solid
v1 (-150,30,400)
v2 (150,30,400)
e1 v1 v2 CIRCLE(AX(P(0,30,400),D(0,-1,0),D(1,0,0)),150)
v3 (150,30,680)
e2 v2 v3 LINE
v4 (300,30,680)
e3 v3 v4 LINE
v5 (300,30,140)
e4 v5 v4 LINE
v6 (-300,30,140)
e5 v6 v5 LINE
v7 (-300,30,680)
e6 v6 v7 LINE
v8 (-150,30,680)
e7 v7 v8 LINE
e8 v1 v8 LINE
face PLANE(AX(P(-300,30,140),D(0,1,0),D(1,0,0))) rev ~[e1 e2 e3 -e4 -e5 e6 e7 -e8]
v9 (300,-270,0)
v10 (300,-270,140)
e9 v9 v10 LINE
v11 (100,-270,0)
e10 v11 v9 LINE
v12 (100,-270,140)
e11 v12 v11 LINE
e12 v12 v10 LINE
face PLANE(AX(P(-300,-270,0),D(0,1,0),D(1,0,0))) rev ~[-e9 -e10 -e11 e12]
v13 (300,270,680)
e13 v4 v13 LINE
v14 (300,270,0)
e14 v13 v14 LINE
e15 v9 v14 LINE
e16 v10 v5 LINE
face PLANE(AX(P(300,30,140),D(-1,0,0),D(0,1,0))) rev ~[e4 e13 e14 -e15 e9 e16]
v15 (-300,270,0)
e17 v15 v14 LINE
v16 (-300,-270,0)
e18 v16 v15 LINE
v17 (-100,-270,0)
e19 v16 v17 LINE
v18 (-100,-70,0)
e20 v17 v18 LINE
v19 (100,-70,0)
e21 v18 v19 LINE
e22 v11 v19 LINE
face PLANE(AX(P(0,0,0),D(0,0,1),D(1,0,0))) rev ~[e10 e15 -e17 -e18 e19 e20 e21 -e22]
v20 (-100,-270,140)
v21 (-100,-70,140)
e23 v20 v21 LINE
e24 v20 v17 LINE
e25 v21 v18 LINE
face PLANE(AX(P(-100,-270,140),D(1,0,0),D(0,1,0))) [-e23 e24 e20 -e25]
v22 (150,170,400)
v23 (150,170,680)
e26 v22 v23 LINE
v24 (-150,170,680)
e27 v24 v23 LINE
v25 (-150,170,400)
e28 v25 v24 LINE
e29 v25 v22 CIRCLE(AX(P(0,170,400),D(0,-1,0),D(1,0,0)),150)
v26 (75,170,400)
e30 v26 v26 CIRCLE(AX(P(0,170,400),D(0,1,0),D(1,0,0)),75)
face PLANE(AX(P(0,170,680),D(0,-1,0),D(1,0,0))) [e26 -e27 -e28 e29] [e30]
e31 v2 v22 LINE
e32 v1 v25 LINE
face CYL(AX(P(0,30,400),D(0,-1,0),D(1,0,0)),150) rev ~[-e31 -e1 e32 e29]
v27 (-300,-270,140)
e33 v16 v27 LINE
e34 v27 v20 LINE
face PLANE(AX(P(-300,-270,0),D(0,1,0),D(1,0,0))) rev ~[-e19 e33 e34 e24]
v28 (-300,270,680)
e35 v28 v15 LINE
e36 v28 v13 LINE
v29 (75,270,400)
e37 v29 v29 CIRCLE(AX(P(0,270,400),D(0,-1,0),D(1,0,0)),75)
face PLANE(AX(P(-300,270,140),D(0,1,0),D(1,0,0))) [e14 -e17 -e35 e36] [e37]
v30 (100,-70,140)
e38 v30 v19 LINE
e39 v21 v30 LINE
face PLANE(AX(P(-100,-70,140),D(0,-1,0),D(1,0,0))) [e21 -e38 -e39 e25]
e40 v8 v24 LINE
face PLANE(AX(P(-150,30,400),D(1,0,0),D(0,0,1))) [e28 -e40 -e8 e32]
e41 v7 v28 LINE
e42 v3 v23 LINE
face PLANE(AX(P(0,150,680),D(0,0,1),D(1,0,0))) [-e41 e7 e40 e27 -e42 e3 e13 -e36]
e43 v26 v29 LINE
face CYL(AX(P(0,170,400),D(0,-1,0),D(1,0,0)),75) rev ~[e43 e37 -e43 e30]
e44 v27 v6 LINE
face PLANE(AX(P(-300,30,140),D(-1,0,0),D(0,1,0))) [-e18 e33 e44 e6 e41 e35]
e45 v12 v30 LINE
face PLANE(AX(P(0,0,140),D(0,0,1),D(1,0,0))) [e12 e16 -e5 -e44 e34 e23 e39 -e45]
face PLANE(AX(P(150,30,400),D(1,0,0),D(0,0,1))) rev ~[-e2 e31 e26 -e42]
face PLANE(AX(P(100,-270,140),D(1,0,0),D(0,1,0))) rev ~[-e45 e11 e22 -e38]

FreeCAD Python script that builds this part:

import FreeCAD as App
import Part
import Sketcher

doc = App.newDocument("Part")
params = doc.addObject("Spreadsheet::Sheet", "Params")
for row, (alias, value) in enumerate([
    ("sketch1_width", "600 mm"),
    ("sketch1_height", "540 mm"),
    ("pad1_length", "140 mm"),
    ("sketch2_width", "200 mm"),
    ("sketch3_width", "600 mm"),
    ("sketch3_height", "240 mm"),
    ("pad2_length", "540 mm"),
    ("sketch4_width", "300 mm"),
    ("sketch4_height", "560 mm"),
    ("pocket2_length", "140 mm"),
    ("sketch5_diameter", "150 mm"),
    ("sketch6_diameter", "300 mm"),
    ("pocket4_length", "140 mm"),
], start=1):
    params.set(f"A{row}", alias)
    params.set(f"B{row}", "=" + value)
    params.setAlias(f"B{row}", alias)

body = doc.addObject("PartDesign::Body", "Body")

# Sketch on XY plane
sketch1 = body.newObject("Sketcher::SketchObject", "Sketch")
sketch1.AttachmentSupport = (doc.getObject("XY_Plane"), [""])
sketch1.MapMode = "FlatFace"
sketch1.addGeometry(Part.LineSegment(App.Vector(-300, 270, 0), App.Vector(-300, -270, 0)), False)
sketch1.addGeometry(Part.LineSegment(App.Vector(-300, -270, 0), App.Vector(300, -270, 0)), False)
sketch1.addGeometry(Part.LineSegment(App.Vector(300, -270, 0), App.Vector(300, 270, 0)), False)
sketch1.addGeometry(Part.LineSegment(App.Vector(300, 270, 0), App.Vector(-300, 270, 0)), False)
sketch1.addConstraint(Sketcher.Constraint("Coincident", 0, 2, 1, 1))
sketch1.addConstraint(Sketcher.Constraint("Coincident", 1, 2, 2, 1))
sketch1.addConstraint(Sketcher.Constraint("Coincident", 2, 2, 3, 1))
sketch1.addConstraint(Sketcher.Constraint("Coincident", 3, 2, 0, 1))
sketch1.addConstraint(Sketcher.Constraint("Vertical", 0))
sketch1.addConstraint(Sketcher.Constraint("Horizontal", 1))
sketch1.addConstraint(Sketcher.Constraint("Vertical", 2))
sketch1.addConstraint(Sketcher.Constraint("Horizontal", 3))
sketch1.addConstraint(Sketcher.Constraint("Symmetric", 0, 2, 2, 2, -1, 1))
sketch1.addConstraint(Sketcher.Constraint("DistanceX", 1, 1, 1, 2, 600.0))
sketch1.addConstraint(Sketcher.Constraint("DistanceY", 0, 2, 0, 1, 540.0))
sketch1.setExpression("Constraints[9]", "Params.sketch1_width")
sketch1.setExpression("Constraints[10]", "Params.sketch1_height")
pad1 = body.newObject("PartDesign::Pad", "Pad")
pad1.Profile = sketch1
pad1.setExpression("Length", "Params.pad1_length")

# Sketch on XY plane
sketch2 = body.newObject("Sketcher::SketchObject", "Sketch001")
sketch2.AttachmentSupport = (doc.getObject("XY_Plane"), [""])
sketch2.MapMode = "FlatFace"
sketch2.AttachmentOffset = App.Placement(App.Vector(0, 0, 140), App.Rotation())
sketch2.addGeometry(Part.LineSegment(App.Vector(-100, -70, 0), App.Vector(-100, -270, 0)), False)
sketch2.addGeometry(Part.LineSegment(App.Vector(-100, -270, 0), App.Vector(100, -270, 0)), False)
sketch2.addGeometry(Part.LineSegment(App.Vector(100, -270, 0), App.Vector(100, -70, 0)), False)
sketch2.addGeometry(Part.LineSegment(App.Vector(100, -70, 0), App.Vector(-100, -70, 0)), False)
sketch2.addConstraint(Sketcher.Constraint("Coincident", 0, 2, 1, 1))
sketch2.addConstraint(Sketcher.Constraint("Coincident", 1, 2, 2, 1))
sketch2.addConstraint(Sketcher.Constraint("Coincident", 2, 2, 3, 1))
sketch2.addConstraint(Sketcher.Constraint("Coincident", 3, 2, 0, 1))
sketch2.addConstraint(Sketcher.Constraint("Vertical", 0))
sketch2.addConstraint(Sketcher.Constraint("Horizontal", 1))
sketch2.addConstraint(Sketcher.Constraint("Vertical", 2))
sketch2.addConstraint(Sketcher.Constraint("Horizontal", 3))
sketch2.addConstraint(Sketcher.Constraint("Equal", 3, 0))
sketch2.addConstraint(Sketcher.Constraint("DistanceX", 1, 1, 1, 2, 200.0))
sketch2.addConstraint(Sketcher.Constraint("DistanceX", 0, 2, -1, 1, 100.0))
sketch2.addConstraint(Sketcher.Constraint("DistanceY", 0, 2, -1, 1, 270.0))
sketch2.setExpression("Constraints[9]", "Params.sketch2_width")
pocket1 = body.newObject("PartDesign::Pocket", "Pocket")
pocket1.Profile = sketch2
pocket1.Type = "ThroughAll"

# Sketch on XY plane
sketch3 = body.newObject("Sketcher::SketchObject", "Sketch002")
sketch3.AttachmentSupport = (doc.getObject("XY_Plane"), [""])
sketch3.MapMode = "FlatFace"
sketch3.AttachmentOffset = App.Placement(App.Vector(0, 0, 140), App.Rotation())
sketch3.addGeometry(Part.LineSegment(App.Vector(-300, 270, 0), App.Vector(-300, 30, 0)), False)
sketch3.addGeometry(Part.LineSegment(App.Vector(-300, 30, 0), App.Vector(300, 30, 0)), False)
sketch3.addGeometry(Part.LineSegment(App.Vector(300, 30, 0), App.Vector(300, 270, 0)), False)
sketch3.addGeometry(Part.LineSegment(App.Vector(300, 270, 0), App.Vector(-300, 270, 0)), False)
sketch3.addConstraint(Sketcher.Constraint("Coincident", 0, 2, 1, 1))
sketch3.addConstraint(Sketcher.Constraint("Coincident", 1, 2, 2, 1))
sketch3.addConstraint(Sketcher.Constraint("Coincident", 2, 2, 3, 1))
sketch3.addConstraint(Sketcher.Constraint("Coincident", 3, 2, 0, 1))
sketch3.addConstraint(Sketcher.Constraint("Vertical", 0))
sketch3.addConstraint(Sketcher.Constraint("Horizontal", 1))
sketch3.addConstraint(Sketcher.Constraint("Vertical", 2))
sketch3.addConstraint(Sketcher.Constraint("Horizontal", 3))
sketch3.addConstraint(Sketcher.Constraint("DistanceX", 1, 1, 1, 2, 600.0))
sketch3.addConstraint(Sketcher.Constraint("DistanceY", 0, 2, 0, 1, 240.0))
sketch3.addConstraint(Sketcher.Constraint("DistanceX", 0, 2, -1, 1, 300.0))
sketch3.addConstraint(Sketcher.Constraint("DistanceY", -1, 1, 0, 2, 30.0))
sketch3.setExpression("Constraints[8]", "Params.sketch3_width")
sketch3.setExpression("Constraints[9]", "Params.sketch3_height")
pad2 = body.newObject("PartDesign::Pad", "Pad001")
pad2.Profile = sketch3
pad2.setExpression("Length", "Params.pad2_length")

# Sketch on XZ plane
sketch4 = body.newObject("Sketcher::SketchObject", "Sketch003")
sketch4.AttachmentSupport = (doc.getObject("XZ_Plane"), [""])
sketch4.MapMode = "FlatFace"
sketch4.AttachmentOffset = App.Placement(App.Vector(0, 0, -30), App.Rotation())
sketch4.addGeometry(Part.LineSegment(App.Vector(-150, 960, 0), App.Vector(-150, 400, 0)), False)
sketch4.addGeometry(Part.LineSegment(App.Vector(-150, 400, 0), App.Vector(150, 400, 0)), False)
sketch4.addGeometry(Part.LineSegment(App.Vector(150, 400, 0), App.Vector(150, 960, 0)), False)
sketch4.addGeometry(Part.LineSegment(App.Vector(150, 960, 0), App.Vector(-150, 960, 0)), False)
sketch4.addConstraint(Sketcher.Constraint("Coincident", 0, 2, 1, 1))
sketch4.addConstraint(Sketcher.Constraint("Coincident", 1, 2, 2, 1))
sketch4.addConstraint(Sketcher.Constraint("Coincident", 2, 2, 3, 1))
sketch4.addConstraint(Sketcher.Constraint("Coincident", 3, 2, 0, 1))
sketch4.addConstraint(Sketcher.Constraint("Vertical", 0))
sketch4.addConstraint(Sketcher.Constraint("Horizontal", 1))
sketch4.addConstraint(Sketcher.Constraint("Vertical", 2))
sketch4.addConstraint(Sketcher.Constraint("Horizontal", 3))
sketch4.addConstraint(Sketcher.Constraint("DistanceX", 1, 1, 1, 2, 300.0))
sketch4.addConstraint(Sketcher.Constraint("DistanceY", 0, 2, 0, 1, 560.0))
sketch4.addConstraint(Sketcher.Constraint("DistanceX", 0, 2, -1, 1, 150.0))
sketch4.addConstraint(Sketcher.Constraint("DistanceY", -1, 1, 0, 2, 400.0))
sketch4.setExpression("Constraints[8]", "Params.sketch4_width")
sketch4.setExpression("Constraints[9]", "Params.sketch4_height")
pocket2 = body.newObject("PartDesign::Pocket", "Pocket001")
pocket2.Profile = sketch4
pocket2.setExpression("Length", "Params.pocket2_length")

# Sketch on XZ plane
sketch5 = body.newObject("Sketcher::SketchObject", "Sketch004")
sketch5.AttachmentSupport = (doc.getObject("XZ_Plane"), [""])
sketch5.MapMode = "FlatFace"
sketch5.AttachmentOffset = App.Placement(App.Vector(0, 0, -170), App.Rotation())
sketch5.addGeometry(Part.Circle(App.Vector(0, 400, 0), App.Vector(0, 0, 1), 75), False)
sketch5.addConstraint(Sketcher.Constraint("PointOnObject", 0, 3, -2))
sketch5.addConstraint(Sketcher.Constraint("Diameter", 0, 150.0))
sketch5.addConstraint(Sketcher.Constraint("DistanceY", -1, 1, 0, 3, 400.0))
sketch5.setExpression("Constraints[1]", "Params.sketch5_diameter")
pocket3 = body.newObject("PartDesign::Pocket", "Pocket002")
pocket3.Profile = sketch5
pocket3.Type = "ThroughAll"

# Sketch on XZ plane
sketch6 = body.newObject("Sketcher::SketchObject", "Sketch005")
sketch6.AttachmentSupport = (doc.getObject("XZ_Plane"), [""])
sketch6.MapMode = "FlatFace"
sketch6.AttachmentOffset = App.Placement(App.Vector(0, 0, -30), App.Rotation())
sketch6.addGeometry(Part.Circle(App.Vector(0, 400, 0), App.Vector(0, 0, 1), 150), False)
sketch6.addConstraint(Sketcher.Constraint("PointOnObject", 0, 3, -2))
sketch6.addConstraint(Sketcher.Constraint("Diameter", 0, 300.0))
sketch6.addConstraint(Sketcher.Constraint("DistanceY", -1, 1, 0, 3, 400.0))
sketch6.setExpression("Constraints[1]", "Params.sketch6_diameter")
pocket4 = body.newObject("PartDesign::Pocket", "Pocket003")
pocket4.Profile = sketch6
pocket4.setExpression("Length", "Params.pocket4_length")

doc.recompute()
